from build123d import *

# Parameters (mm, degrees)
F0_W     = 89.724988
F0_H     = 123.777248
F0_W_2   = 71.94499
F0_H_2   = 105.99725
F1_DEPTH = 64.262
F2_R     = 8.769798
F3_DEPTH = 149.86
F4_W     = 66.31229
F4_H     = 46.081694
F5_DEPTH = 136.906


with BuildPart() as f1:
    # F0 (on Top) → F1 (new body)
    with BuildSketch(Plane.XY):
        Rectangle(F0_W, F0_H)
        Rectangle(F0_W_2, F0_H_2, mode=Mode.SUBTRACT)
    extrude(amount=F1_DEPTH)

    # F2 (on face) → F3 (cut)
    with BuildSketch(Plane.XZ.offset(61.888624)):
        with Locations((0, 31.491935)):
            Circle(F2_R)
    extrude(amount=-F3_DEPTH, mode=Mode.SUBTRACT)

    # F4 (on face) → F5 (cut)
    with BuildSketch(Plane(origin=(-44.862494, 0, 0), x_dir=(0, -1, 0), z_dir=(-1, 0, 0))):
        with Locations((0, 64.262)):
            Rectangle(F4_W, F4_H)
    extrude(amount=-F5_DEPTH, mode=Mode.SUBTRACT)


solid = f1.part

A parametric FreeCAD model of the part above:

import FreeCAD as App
import Part
import Sketcher
from FreeCAD import Vector
Q = App.Units.Quantity


def add_polygon(sketch, points):
    """Adds a closed chain of lines whose ends are joined by coincident constraints."""
    first, n = sketch.GeometryCount, len(points)
    for a, b in zip(points, points[1:] + points[:1]):
        sketch.addGeometry(Part.LineSegment(App.Vector(*a, 0), App.Vector(*b, 0)), False)
    for i in range(n):
        sketch.addConstraint(Sketcher.Constraint("Coincident", first + i, 2, first + (i + 1) % n, 1))

doc = App.newDocument("Part")
params = doc.addObject("Spreadsheet::Sheet", "Params")
for row, (alias, value) in enumerate([
    ("pad1_length", "2.53 in"),
    ("pocket1_length", "5.9 in"),
    ("pocket2_length", "5.39 in"),
], start=1):
    params.set(f"A{row}", alias)
    params.set(f"B{row}", "=" + value)
    params.setAlias(f"B{row}", alias)

body = doc.addObject("PartDesign::Body", "Body")

# Sketch on XY plane
sketch1 = body.newObject("Sketcher::SketchObject", "Sketch")
sketch1.AttachmentSupport = (doc.getObject("XY_Plane"), [""])
sketch1.MapMode = "FlatFace"
add_polygon(sketch1, [(-45, 62), (-45, -62), (45, -62), (45, 62)])  # lines 0-3
add_polygon(sketch1, [(36, -53), (-36, -53), (-36, 53), (36, 53)])  # lines 4-7
sketch1.addConstraint(Sketcher.Constraint("Vertical", 0))
sketch1.addConstraint(Sketcher.Constraint("Horizontal", 1))
sketch1.addConstraint(Sketcher.Constraint("Vertical", 2))
sketch1.addConstraint(Sketcher.Constraint("Horizontal", 3))
sketch1.addConstraint(Sketcher.Constraint("Horizontal", 4))
sketch1.addConstraint(Sketcher.Constraint("Vertical", 5))
sketch1.addConstraint(Sketcher.Constraint("Horizontal", 6))
sketch1.addConstraint(Sketcher.Constraint("Vertical", 7))
sketch1.addConstraint(Sketcher.Constraint("Symmetric", 0, 2, 2, 2, -1, 1))
sketch1.addConstraint(Sketcher.Constraint("Symmetric", 4, 2, 6, 2, -1, 1))
sketch1.addConstraint(Sketcher.Constraint("DistanceX", 0, 2, 4, 2, Q("0.35 in")))
sketch1.addConstraint(Sketcher.Constraint("DistanceY", 0, 2, 4, 2, Q("0.35 in")))
sketch1.addConstraint(Sketcher.Constraint("DistanceX", 4, 2, 4, 1, Q("71.94499 mm")))
sketch1.addConstraint(Sketcher.Constraint("DistanceY", 0, 2, 0, 1, Q("123.777248 mm")))
pad1 = body.newObject("PartDesign::Pad", "Pad")
pad1.Profile = sketch1
pad1.setExpression("Length", "Params.pad1_length")

# Sketch on XZ plane
sketch2 = body.newObject("Sketcher::SketchObject", "Sketch001")
sketch2.AttachmentSupport = (doc.getObject("XZ_Plane"), [""])
sketch2.MapMode = "FlatFace"
sketch2.AttachmentOffset = App.Placement(Vector(0, 0, 61.888624), App.Rotation())
sketch2.addGeometry(Part.Circle(Vector(0, 31, 0), Vector(0, 0, 1), 9), False)
sketch2.addConstraint(Sketcher.Constraint("PointOnObject", 0, 3, -2))
sketch2.addConstraint(Sketcher.Constraint("Diameter", 0, Q("17.539596 mm")))
sketch2.addConstraint(Sketcher.Constraint("DistanceY", -1, 1, 0, 3, Q("31.491935 mm")))
pocket1 = body.newObject("PartDesign::Pocket", "Pocket")
pocket1.Profile = sketch2
pocket1.setExpression("Length", "Params.pocket1_length")

# Sketch on YZ plane
sketch3 = body.newObject("Sketcher::SketchObject", "Sketch002")
sketch3.AttachmentSupport = (doc.getObject("YZ_Plane"), [""])
sketch3.MapMode = "FlatFace"
sketch3.AttachmentOffset = App.Placement(Vector(0, 0, -44.862494), App.Rotation())
add_polygon(sketch3, [(33, 87), (33, 41), (-33, 41), (-33, 87)])  # lines 0-3
sketch3.addConstraint(Sketcher.Constraint("Vertical", 0))
sketch3.addConstraint(Sketcher.Constraint("Horizontal", 1))
sketch3.addConstraint(Sketcher.Constraint("Vertical", 2))
sketch3.addConstraint(Sketcher.Constraint("Horizontal", 3))
sketch3.addConstraint(Sketcher.Constraint("DistanceX", 1, 2, 1, 1, Q("66.31229 mm")))
sketch3.addConstraint(Sketcher.Constraint("DistanceY", 0, 2, 0, 1, Q("46.081694 mm")))
sketch3.addConstraint(Sketcher.Constraint("DistanceX", -1, 1, 0, 2, Q("33.156145 mm")))
sketch3.addConstraint(Sketcher.Constraint("DistanceY", -1, 1, 0, 2, Q("41.221153 mm")))
pocket2 = body.newObject("PartDesign::Pocket", "Pocket001")
pocket2.Profile = sketch3
pocket2.setExpression("Length", "Params.pocket2_length")
pocket2.Reversed = True

doc.recompute()
